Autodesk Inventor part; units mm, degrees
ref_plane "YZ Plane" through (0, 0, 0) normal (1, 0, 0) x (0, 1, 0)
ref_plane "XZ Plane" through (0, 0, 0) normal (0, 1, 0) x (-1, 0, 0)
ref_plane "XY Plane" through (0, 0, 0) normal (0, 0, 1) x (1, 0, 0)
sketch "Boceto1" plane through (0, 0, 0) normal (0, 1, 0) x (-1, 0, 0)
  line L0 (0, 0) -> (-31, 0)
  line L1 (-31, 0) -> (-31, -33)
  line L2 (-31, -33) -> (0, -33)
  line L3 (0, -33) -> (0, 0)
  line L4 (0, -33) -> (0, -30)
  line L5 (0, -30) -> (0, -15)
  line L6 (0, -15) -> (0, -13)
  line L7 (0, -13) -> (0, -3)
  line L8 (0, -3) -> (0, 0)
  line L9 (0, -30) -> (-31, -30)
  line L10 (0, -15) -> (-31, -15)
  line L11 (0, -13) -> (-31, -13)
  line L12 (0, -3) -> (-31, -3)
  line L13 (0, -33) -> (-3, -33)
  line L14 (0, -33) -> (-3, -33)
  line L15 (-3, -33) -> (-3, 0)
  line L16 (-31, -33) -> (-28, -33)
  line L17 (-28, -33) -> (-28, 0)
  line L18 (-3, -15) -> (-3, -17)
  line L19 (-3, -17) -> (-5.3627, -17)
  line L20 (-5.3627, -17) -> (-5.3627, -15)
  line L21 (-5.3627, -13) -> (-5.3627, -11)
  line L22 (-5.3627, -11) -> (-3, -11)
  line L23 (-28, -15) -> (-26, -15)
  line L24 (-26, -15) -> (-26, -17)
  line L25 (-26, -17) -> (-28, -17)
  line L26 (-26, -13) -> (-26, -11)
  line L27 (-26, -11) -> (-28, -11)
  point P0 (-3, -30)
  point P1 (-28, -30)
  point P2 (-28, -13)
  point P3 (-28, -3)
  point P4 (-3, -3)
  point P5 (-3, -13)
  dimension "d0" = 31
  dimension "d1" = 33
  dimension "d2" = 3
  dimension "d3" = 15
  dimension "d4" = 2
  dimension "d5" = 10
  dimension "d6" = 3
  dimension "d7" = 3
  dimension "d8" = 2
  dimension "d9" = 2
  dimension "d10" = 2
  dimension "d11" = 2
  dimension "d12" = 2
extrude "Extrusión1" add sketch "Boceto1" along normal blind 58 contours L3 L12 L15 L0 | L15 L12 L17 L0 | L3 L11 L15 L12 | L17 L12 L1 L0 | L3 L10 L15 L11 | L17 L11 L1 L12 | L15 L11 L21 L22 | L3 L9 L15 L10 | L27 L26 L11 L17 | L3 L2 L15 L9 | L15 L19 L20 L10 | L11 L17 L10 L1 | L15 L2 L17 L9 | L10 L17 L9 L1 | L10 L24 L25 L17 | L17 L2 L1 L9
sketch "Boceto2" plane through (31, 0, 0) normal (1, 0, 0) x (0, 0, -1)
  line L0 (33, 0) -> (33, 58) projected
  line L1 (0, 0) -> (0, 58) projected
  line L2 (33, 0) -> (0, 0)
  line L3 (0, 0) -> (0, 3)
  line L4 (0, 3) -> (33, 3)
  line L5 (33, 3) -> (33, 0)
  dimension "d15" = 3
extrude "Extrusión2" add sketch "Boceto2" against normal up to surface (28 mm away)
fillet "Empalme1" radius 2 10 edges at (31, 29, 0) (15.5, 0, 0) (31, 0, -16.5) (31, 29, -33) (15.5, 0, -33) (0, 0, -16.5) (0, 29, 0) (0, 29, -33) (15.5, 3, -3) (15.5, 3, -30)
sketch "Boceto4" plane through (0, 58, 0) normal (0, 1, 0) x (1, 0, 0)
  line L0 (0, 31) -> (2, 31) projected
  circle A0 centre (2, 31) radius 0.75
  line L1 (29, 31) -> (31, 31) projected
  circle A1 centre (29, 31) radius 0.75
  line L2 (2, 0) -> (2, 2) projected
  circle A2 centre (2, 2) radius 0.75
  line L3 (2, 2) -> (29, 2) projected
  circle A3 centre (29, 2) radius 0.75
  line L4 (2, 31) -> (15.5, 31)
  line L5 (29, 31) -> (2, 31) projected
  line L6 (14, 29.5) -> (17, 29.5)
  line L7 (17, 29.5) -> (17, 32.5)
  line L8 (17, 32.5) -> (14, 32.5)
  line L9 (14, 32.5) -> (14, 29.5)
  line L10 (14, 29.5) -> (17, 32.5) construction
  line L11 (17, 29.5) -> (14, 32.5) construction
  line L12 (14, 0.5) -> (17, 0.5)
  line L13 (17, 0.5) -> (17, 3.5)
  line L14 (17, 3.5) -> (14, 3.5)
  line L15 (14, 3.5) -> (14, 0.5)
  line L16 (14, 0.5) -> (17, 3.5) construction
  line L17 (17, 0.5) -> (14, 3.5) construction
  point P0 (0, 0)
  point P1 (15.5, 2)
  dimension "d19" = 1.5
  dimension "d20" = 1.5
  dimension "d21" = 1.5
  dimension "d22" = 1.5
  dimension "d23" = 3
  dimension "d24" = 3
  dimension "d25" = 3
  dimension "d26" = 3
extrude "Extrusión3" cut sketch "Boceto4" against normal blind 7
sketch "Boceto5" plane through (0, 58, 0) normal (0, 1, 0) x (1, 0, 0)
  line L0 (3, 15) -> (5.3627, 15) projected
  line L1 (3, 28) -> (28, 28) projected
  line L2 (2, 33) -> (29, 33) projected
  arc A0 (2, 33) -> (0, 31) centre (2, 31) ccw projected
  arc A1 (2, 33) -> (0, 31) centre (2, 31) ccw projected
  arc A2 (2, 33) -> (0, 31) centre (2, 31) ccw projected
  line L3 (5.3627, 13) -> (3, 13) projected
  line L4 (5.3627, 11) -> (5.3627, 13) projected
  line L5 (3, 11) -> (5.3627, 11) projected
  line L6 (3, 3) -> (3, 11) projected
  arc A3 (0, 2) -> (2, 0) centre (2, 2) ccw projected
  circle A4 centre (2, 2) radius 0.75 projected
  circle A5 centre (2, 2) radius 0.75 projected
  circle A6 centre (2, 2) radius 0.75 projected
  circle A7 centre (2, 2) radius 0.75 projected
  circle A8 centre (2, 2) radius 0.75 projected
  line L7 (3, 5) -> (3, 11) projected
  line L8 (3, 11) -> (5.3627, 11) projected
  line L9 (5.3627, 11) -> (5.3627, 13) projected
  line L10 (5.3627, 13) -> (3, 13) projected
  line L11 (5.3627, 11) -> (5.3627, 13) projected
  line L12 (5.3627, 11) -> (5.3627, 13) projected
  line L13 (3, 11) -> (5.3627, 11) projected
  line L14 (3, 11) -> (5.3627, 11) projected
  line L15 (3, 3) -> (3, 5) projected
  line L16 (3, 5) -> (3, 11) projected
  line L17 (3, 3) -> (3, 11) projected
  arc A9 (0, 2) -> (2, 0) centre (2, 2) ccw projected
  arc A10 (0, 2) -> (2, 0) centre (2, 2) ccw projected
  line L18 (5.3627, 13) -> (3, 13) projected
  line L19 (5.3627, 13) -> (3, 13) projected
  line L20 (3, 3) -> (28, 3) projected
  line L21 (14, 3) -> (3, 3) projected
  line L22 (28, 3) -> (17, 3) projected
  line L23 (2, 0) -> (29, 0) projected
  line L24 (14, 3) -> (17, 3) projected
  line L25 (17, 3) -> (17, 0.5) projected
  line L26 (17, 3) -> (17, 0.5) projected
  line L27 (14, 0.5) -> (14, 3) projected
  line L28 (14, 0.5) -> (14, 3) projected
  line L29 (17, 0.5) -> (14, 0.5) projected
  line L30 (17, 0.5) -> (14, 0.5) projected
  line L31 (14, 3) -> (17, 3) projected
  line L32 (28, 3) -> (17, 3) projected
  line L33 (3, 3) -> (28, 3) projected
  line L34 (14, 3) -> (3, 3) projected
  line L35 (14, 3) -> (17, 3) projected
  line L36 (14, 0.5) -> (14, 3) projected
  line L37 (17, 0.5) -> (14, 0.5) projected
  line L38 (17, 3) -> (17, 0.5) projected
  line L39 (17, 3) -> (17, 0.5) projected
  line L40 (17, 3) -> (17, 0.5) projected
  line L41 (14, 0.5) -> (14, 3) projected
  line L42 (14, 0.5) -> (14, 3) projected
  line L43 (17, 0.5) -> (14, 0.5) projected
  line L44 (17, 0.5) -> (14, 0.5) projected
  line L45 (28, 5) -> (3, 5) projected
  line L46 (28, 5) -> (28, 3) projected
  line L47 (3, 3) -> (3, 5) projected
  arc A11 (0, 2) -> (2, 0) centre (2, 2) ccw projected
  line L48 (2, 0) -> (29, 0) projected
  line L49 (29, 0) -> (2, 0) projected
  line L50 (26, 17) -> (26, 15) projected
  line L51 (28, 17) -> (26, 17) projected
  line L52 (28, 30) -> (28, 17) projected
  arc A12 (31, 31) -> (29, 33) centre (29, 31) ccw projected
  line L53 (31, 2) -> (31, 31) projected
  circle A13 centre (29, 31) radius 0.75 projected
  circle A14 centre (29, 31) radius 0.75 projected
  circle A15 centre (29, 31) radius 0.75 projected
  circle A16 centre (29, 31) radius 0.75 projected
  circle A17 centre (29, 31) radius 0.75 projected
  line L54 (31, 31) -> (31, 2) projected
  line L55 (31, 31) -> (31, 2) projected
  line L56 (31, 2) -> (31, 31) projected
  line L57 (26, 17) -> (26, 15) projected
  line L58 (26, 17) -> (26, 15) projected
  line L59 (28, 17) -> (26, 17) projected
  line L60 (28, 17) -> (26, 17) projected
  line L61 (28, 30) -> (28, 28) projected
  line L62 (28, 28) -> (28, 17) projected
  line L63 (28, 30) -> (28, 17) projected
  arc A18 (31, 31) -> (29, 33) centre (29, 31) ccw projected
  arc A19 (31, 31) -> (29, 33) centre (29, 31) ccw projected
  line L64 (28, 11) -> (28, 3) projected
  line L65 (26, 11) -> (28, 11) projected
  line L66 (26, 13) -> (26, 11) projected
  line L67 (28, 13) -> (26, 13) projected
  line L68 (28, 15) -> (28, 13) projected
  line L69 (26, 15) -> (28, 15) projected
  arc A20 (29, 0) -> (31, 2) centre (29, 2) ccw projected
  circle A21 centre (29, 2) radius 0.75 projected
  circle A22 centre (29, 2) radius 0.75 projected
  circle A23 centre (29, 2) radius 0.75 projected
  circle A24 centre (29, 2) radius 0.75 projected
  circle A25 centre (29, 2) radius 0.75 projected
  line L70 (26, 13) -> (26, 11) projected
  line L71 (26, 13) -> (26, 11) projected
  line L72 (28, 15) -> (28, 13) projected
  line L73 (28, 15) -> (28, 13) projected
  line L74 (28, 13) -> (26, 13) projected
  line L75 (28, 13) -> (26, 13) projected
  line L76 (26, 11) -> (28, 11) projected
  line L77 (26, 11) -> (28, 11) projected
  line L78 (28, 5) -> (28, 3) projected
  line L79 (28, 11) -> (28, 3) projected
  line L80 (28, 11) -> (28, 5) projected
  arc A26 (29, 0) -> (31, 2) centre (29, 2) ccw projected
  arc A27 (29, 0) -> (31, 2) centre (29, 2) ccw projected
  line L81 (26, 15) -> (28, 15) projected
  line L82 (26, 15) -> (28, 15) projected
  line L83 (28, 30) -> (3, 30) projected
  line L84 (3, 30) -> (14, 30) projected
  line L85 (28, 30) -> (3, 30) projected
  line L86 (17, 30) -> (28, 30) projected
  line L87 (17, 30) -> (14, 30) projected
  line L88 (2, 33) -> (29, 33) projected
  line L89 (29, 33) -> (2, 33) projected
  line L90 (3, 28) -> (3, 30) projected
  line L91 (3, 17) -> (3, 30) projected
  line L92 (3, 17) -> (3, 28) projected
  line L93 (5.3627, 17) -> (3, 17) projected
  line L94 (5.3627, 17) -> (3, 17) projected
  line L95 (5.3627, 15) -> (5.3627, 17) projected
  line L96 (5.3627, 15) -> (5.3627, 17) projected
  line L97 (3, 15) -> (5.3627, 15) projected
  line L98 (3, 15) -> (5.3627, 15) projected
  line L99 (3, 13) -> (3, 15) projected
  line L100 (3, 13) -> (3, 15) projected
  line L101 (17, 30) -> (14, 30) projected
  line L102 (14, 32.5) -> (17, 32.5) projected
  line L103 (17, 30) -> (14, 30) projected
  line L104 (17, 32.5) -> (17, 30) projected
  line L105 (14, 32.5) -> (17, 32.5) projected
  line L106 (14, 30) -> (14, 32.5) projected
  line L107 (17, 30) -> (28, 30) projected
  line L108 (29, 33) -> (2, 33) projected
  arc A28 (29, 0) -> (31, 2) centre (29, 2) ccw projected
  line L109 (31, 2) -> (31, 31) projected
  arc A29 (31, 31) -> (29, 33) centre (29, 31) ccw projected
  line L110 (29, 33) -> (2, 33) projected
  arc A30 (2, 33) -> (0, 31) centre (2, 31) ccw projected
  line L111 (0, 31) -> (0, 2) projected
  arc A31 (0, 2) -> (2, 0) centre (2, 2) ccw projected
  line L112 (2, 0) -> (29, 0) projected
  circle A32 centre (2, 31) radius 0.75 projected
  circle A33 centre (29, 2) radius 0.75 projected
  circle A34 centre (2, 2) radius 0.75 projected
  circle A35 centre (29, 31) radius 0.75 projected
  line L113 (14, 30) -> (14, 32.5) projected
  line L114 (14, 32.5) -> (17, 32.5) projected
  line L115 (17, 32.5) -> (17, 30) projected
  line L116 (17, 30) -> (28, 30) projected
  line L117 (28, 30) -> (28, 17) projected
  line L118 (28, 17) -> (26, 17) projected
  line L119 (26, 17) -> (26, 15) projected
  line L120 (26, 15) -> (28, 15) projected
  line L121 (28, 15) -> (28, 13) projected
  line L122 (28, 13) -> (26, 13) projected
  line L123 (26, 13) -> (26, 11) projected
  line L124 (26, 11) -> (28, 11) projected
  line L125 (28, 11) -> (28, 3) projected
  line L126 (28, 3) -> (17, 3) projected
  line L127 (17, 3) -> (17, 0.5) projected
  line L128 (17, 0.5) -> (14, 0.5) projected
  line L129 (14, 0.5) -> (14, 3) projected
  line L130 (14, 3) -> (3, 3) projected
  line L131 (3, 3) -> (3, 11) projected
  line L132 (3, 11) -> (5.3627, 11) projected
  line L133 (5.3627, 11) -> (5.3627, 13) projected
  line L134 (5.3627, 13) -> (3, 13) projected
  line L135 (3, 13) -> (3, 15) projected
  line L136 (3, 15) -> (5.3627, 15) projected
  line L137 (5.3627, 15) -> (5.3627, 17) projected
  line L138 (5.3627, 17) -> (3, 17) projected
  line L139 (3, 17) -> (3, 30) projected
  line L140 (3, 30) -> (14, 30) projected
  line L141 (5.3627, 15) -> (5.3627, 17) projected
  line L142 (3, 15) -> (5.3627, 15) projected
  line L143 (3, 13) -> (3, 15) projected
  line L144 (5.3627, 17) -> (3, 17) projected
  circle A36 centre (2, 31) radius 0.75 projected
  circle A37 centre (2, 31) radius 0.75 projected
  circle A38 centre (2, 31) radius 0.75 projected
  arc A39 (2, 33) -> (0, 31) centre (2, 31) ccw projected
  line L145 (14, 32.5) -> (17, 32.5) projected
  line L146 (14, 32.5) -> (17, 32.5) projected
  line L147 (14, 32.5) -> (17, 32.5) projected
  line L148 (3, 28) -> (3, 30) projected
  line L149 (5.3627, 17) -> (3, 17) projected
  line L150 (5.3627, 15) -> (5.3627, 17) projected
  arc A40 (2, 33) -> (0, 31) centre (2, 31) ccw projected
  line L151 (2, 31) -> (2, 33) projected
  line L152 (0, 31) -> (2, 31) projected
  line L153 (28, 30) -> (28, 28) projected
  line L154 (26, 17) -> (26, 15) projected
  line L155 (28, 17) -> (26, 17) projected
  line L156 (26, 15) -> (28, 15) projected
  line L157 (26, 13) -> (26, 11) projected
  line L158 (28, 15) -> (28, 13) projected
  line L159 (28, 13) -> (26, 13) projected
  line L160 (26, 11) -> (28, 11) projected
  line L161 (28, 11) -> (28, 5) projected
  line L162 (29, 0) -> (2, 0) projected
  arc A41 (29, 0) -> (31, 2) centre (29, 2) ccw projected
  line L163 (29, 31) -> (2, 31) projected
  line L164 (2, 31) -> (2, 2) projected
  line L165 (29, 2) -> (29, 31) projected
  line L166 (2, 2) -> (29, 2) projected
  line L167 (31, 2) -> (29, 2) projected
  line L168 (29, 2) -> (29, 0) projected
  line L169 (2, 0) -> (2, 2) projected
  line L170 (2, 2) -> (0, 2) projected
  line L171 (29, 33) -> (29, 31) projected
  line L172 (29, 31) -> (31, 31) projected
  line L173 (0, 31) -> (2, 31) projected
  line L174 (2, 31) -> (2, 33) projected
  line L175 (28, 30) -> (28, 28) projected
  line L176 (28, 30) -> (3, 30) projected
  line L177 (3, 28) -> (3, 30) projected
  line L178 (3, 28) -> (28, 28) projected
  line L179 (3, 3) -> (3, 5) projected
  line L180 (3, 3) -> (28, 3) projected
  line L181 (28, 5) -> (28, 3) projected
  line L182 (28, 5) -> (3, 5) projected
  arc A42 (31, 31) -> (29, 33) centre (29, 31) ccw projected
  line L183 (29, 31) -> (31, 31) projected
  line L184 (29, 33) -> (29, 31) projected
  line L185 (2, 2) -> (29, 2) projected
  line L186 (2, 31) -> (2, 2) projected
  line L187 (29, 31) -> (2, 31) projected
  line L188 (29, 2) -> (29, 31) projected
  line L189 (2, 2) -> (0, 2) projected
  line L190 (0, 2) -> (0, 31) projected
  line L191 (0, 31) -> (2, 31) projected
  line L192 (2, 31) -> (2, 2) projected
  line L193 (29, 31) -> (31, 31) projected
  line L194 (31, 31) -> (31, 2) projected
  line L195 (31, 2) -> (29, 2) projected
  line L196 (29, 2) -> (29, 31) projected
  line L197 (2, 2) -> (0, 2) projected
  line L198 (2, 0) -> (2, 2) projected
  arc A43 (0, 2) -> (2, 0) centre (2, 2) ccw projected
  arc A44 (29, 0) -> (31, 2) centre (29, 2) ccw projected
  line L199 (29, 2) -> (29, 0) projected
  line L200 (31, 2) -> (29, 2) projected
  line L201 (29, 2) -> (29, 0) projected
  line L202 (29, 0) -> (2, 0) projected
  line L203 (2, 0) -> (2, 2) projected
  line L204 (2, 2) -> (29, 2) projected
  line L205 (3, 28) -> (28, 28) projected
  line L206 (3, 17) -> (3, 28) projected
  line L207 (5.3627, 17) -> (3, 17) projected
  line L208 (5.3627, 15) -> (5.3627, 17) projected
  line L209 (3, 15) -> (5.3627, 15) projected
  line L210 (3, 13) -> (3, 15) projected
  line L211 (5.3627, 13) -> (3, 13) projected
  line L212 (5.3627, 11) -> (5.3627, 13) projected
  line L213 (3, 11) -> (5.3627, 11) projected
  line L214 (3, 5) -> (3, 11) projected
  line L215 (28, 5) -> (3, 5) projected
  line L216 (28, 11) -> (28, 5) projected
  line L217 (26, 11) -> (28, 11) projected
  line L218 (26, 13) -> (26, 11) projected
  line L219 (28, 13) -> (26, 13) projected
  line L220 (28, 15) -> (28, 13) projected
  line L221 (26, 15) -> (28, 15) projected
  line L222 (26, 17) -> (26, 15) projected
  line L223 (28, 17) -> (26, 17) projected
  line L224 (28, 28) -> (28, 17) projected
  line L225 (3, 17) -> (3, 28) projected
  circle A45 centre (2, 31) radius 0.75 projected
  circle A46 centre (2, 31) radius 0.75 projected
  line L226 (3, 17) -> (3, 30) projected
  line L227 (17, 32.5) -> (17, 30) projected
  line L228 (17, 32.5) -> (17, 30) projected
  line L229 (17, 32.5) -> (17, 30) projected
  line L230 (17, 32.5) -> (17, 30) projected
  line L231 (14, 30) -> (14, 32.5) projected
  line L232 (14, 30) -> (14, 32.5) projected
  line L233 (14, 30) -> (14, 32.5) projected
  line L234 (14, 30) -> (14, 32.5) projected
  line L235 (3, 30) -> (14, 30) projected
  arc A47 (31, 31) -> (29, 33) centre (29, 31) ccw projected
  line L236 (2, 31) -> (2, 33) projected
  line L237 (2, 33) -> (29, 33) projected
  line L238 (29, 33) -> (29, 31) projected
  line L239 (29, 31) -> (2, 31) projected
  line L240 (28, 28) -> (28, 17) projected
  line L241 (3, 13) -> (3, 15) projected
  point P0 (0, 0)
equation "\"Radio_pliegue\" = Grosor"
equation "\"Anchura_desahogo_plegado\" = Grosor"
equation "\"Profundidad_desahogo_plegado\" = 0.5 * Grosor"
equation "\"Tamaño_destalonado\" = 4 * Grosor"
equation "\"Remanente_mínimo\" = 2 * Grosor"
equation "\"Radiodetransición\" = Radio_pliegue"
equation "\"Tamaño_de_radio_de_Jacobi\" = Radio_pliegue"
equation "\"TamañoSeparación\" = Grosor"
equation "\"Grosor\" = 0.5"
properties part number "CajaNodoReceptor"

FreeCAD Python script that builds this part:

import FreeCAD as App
import Part
import Sketcher

V = App.Vector
Q = App.Units.Quantity


def edges_at(feature, points):
    """Names of the edges that pass closest to the given points."""
    edges = feature.Shape.Edges
    near = lambda p: min(range(len(edges)), key=lambda i: edges[i].distToShape(Part.Vertex(*p))[0])
    return sorted({f"Edge{near(p) + 1}" for p in points})


def add_polygon(sketch, points):
    """Adds a closed chain of lines whose ends are joined by coincident constraints."""
    first, n = sketch.GeometryCount, len(points)
    for a, b in zip(points, points[1:] + points[:1]):
        sketch.addGeometry(Part.LineSegment(App.Vector(*a, 0), App.Vector(*b, 0)), False)
    for i in range(n):
        sketch.addConstraint(Sketcher.Constraint("Coincident", first + i, 2, first + (i + 1) % n, 1))

doc = App.newDocument("Part")
body = doc.addObject("PartDesign::Body", "Body")

sketch1 = body.newObject("Sketcher::SketchObject", "Sketch")
sketch1.AttachmentSupport = (doc.getObject("XZ_Plane"), [""])
sketch1.MapMode = "FlatFace"
add_polygon(sketch1, [(0, 0), (31, 0), (31, -33), (0, -33)])
add_polygon(sketch1, [(3, -3), (3, -11), (5.4, -11), (5.4, -13), (3, -13), (3, -15), (5.4, -15), (5.4, -17), (3, -17), (3, -30), (28, -30), (28, -17), (26, -17), (26, -15), (28, -15), (28, -13), (26, -13), (26, -11), (28, -11), (28, -3)])
sketch1.addConstraint(Sketcher.Constraint("Horizontal", 0))
sketch1.addConstraint(Sketcher.Constraint("Vertical", 1))
sketch1.addConstraint(Sketcher.Constraint("Horizontal", 2))
sketch1.addConstraint(Sketcher.Constraint("Vertical", 3))
sketch1.addConstraint(Sketcher.Constraint("Vertical", 4))
sketch1.addConstraint(Sketcher.Constraint("Horizontal", 5))
sketch1.addConstraint(Sketcher.Constraint("Vertical", 6))
sketch1.addConstraint(Sketcher.Constraint("Horizontal", 7))
sketch1.addConstraint(Sketcher.Constraint("Vertical", 8))
sketch1.addConstraint(Sketcher.Constraint("Horizontal", 9))
sketch1.addConstraint(Sketcher.Constraint("Vertical", 10))
sketch1.addConstraint(Sketcher.Constraint("Horizontal", 11))
sketch1.addConstraint(Sketcher.Constraint("Vertical", 12))
sketch1.addConstraint(Sketcher.Constraint("Horizontal", 13))
sketch1.addConstraint(Sketcher.Constraint("Vertical", 14))
sketch1.addConstraint(Sketcher.Constraint("Horizontal", 15))
sketch1.addConstraint(Sketcher.Constraint("Vertical", 16))
sketch1.addConstraint(Sketcher.Constraint("Horizontal", 17))
sketch1.addConstraint(Sketcher.Constraint("Vertical", 18))
sketch1.addConstraint(Sketcher.Constraint("Horizontal", 19))
sketch1.addConstraint(Sketcher.Constraint("Vertical", 20))
sketch1.addConstraint(Sketcher.Constraint("Horizontal", 21))
sketch1.addConstraint(Sketcher.Constraint("Vertical", 22))
sketch1.addConstraint(Sketcher.Constraint("Horizontal", 23))
sketch1.addConstraint(Sketcher.Constraint("Coincident", 3, 2, -1, 1))
sketch1.addConstraint(Sketcher.Constraint("Horizontal", 11, 2, 14, 2))
sketch1.addConstraint(Sketcher.Constraint("Horizontal", 9, 2, 16, 2))
sketch1.addConstraint(Sketcher.Constraint("Horizontal", 7, 2, 18, 2))
sketch1.addConstraint(Sketcher.Constraint("Horizontal", 5, 2, 20, 2))
sketch1.addConstraint(Sketcher.Constraint("Vertical", 4, 2, 7, 2))
sketch1.addConstraint(Sketcher.Constraint("Vertical", 6, 2, 9, 2))
sketch1.addConstraint(Sketcher.Constraint("Vertical", 8, 2, 11, 2))
sketch1.addConstraint(Sketcher.Constraint("Vertical", 14, 2, 17, 2))
sketch1.addConstraint(Sketcher.Constraint("Vertical", 16, 2, 19, 2))
sketch1.addConstraint(Sketcher.Constraint("Vertical", 18, 2, 21, 2))
sketch1.addConstraint(Sketcher.Constraint("Equal", 21, 6))
sketch1.addConstraint(Sketcher.Constraint("Equal", 6, 8))
sketch1.addConstraint(Sketcher.Constraint("Equal", 8, 10))
sketch1.addConstraint(Sketcher.Constraint("DistanceX", 0, 1, 0, 2, Q("31 mm")))
sketch1.addConstraint(Sketcher.Constraint("DistanceX", 15, 2, 15, 1, Q("2 mm")))
sketch1.addConstraint(Sketcher.Constraint("DistanceY", 1, 2, 1, 1, Q("33 mm")))
sketch1.addConstraint(Sketcher.Constraint("DistanceX", -1, 1, 4, 2, Q("3 mm")))
sketch1.addConstraint(Sketcher.Constraint("DistanceY", 8, 2, -1, 1, Q("15 mm")))
sketch1.addConstraint(Sketcher.Constraint("DistanceY", 22, 2, -1, 1, Q("3 mm")))
sketch1.addConstraint(Sketcher.Constraint("DistanceY", 2, 2, 12, 2, Q("3 mm")))
sketch1.addConstraint(Sketcher.Constraint("DistanceX", 13, 2, 1, 2, Q("3 mm")))
sketch1.addConstraint(Sketcher.Constraint("DistanceX", 5, 1, 5, 2, Q("2.3627 mm")))
pad1 = body.newObject("PartDesign::Pad", "Pad")
pad1.Profile = sketch1
pad1.Length = 58
pad1.Reversed = True

sketch2 = body.newObject("Sketcher::SketchObject", "Sketch001")
sketch2.AttachmentSupport = (doc.getObject("YZ_Plane"), [""])
sketch2.MapMode = "FlatFace"
sketch2.AttachmentOffset = App.Placement(V(0, 0, 31), App.Rotation())
add_polygon(sketch2, [(0, 0), (0, -33), (3, -33), (3, 0)])
sketch2.addConstraint(Sketcher.Constraint("Vertical", 0))
sketch2.addConstraint(Sketcher.Constraint("Horizontal", 1))
sketch2.addConstraint(Sketcher.Constraint("Vertical", 2))
sketch2.addConstraint(Sketcher.Constraint("Horizontal", 3))
sketch2.addConstraint(Sketcher.Constraint("Coincident", 3, 2, -1, 1))
sketch2.addConstraint(Sketcher.Constraint("DistanceX", 1, 1, 1, 2, Q("3 mm")))
sketch2.addConstraint(Sketcher.Constraint("DistanceY", 0, 2, 0, 1, Q("33 mm")))
pad2 = body.newObject("PartDesign::Pad", "Pad001")
pad2.Profile = sketch2
pad2.Length = 28
pad2.Reversed = True
doc.recompute()

fillet = body.newObject("PartDesign::Fillet", "Fillet")
fillet.Base = (pad2, edges_at(pad2, [
    (31, 29, 0),
    (15.5, 0, 0),
    (31, 0, -16.5),
    (31, 29, -33),
    (15.5, 0, -33),
    (0, 0, -16.5),
    (0, 29, 0),
    (0, 29, -33),
    (15.5, 3, -3),
    (15.5, 3, -30),
]))
fillet.Radius = 2

sketch3 = body.newObject("Sketcher::SketchObject", "Sketch002")
sketch3.AttachmentSupport = (doc.getObject("XZ_Plane"), [""])
sketch3.MapMode = "FlatFace"
sketch3.AttachmentOffset = App.Placement(V(0, 0, -58), App.Rotation())
sketch3.addGeometry(Part.Circle(V(2, -31, 0), V(0, 0, 1), 0.8), False)
sketch3.addGeometry(Part.Circle(V(29, -31, 0), V(0, 0, 1), 0.8), False)
add_polygon(sketch3, [(14, -32.5), (14, -29.5), (17, -29.5), (17, -32.5)])
sketch3.addGeometry(Part.Circle(V(2, -2, 0), V(0, 0, 1), 0.8), False)
sketch3.addGeometry(Part.Circle(V(29, -2, 0), V(0, 0, 1), 0.8), False)
add_polygon(sketch3, [(14, -3.5), (14, -0.5), (17, -0.5), (17, -3.5)])
sketch3.addConstraint(Sketcher.Constraint("Vertical", 2))
sketch3.addConstraint(Sketcher.Constraint("Horizontal", 3))
sketch3.addConstraint(Sketcher.Constraint("Vertical", 4))
sketch3.addConstraint(Sketcher.Constraint("Horizontal", 5))
sketch3.addConstraint(Sketcher.Constraint("Vertical", 8))
sketch3.addConstraint(Sketcher.Constraint("Horizontal", 9))
sketch3.addConstraint(Sketcher.Constraint("Vertical", 10))
sketch3.addConstraint(Sketcher.Constraint("Horizontal", 11))
sketch3.addConstraint(Sketcher.Constraint("Equal", 0, 1))
sketch3.addConstraint(Sketcher.Constraint("Equal", 1, 6))
sketch3.addConstraint(Sketcher.Constraint("Equal", 6, 7))
sketch3.addConstraint(Sketcher.Constraint("Horizontal", 0, 3, 1, 3))
sketch3.addConstraint(Sketcher.Constraint("Horizontal", 6, 3, 7, 3))
sketch3.addConstraint(Sketcher.Constraint("Vertical", 0, 3, 6, 3))
sketch3.addConstraint(Sketcher.Constraint("Vertical", 1, 3, 7, 3))
sketch3.addConstraint(Sketcher.Constraint("Vertical", 5, 2, 8, 2))
sketch3.addConstraint(Sketcher.Constraint("Vertical", 4, 2, 9, 2))
sketch3.addConstraint(Sketcher.Constraint("Equal", 11, 2))
sketch3.addConstraint(Sketcher.Constraint("Equal", 4, 8))
sketch3.addConstraint(Sketcher.Constraint("Diameter", 0, Q("1.5 mm")))
sketch3.addConstraint(Sketcher.Constraint("DistanceX", 3, 1, 3, 2, Q("3 mm")))
sketch3.addConstraint(Sketcher.Constraint("DistanceY", 0, 3, 2, 2, Q("1.5 mm")))
sketch3.addConstraint(Sketcher.Constraint("DistanceY", 6, 3, 8, 2, Q("1.5 mm")))
sketch3.addConstraint(Sketcher.Constraint("DistanceX", -1, 1, 0, 3, Q("2 mm")))
sketch3.addConstraint(Sketcher.Constraint("DistanceY", 0, 3, -1, 1, Q("31 mm")))
sketch3.addConstraint(Sketcher.Constraint("DistanceX", -1, 1, 1, 3, Q("29 mm")))
sketch3.addConstraint(Sketcher.Constraint("DistanceY", 6, 3, -1, 1, Q("2 mm")))
sketch3.addConstraint(Sketcher.Constraint("DistanceX", -1, 1, 2, 2, Q("14 mm")))
pocket1 = body.newObject("PartDesign::Pocket", "Pocket")
pocket1.Profile = sketch3
pocket1.Length = 7
pocket1.Reversed = True

doc.recompute()
